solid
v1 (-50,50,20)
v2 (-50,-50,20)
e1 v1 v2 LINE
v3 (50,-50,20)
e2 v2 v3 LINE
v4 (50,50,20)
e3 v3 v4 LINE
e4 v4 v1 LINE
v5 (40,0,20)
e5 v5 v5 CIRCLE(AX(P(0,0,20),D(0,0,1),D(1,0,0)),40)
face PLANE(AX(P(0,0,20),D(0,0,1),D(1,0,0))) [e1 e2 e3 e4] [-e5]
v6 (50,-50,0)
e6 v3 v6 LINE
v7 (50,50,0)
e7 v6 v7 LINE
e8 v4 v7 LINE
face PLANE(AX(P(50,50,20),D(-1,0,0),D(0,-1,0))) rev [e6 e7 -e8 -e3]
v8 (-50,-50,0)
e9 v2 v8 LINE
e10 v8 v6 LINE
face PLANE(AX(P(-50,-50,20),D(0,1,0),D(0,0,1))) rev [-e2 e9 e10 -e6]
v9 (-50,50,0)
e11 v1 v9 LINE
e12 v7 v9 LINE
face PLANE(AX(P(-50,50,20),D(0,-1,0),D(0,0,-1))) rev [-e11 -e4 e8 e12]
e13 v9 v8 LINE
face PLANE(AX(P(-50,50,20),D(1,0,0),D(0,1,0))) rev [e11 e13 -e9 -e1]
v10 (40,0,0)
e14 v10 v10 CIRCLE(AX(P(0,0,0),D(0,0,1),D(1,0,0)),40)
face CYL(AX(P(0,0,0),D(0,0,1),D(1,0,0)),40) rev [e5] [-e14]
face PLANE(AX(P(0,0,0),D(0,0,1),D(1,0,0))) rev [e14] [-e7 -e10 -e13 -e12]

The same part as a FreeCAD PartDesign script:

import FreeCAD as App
import Part
import Sketcher

V = App.Vector

doc = App.newDocument("Part")
body = doc.addObject("PartDesign::Body", "Body")

# Sketch on XY plane
sketch1 = body.newObject("Sketcher::SketchObject", "Sketch")
sketch1.AttachmentSupport = (doc.getObject("XY_Plane"), [""])
sketch1.MapMode = "FlatFace"
sketch1.addGeometry(Part.LineSegment(V(-50, 50, 0), V(-50, -50, 0)), False)
sketch1.addGeometry(Part.LineSegment(V(-50, -50, 0), V(50, -50, 0)), False)
sketch1.addGeometry(Part.LineSegment(V(50, -50, 0), V(50, 50, 0)), False)
sketch1.addGeometry(Part.LineSegment(V(50, 50, 0), V(-50, 50, 0)), False)
sketch1.addConstraint(Sketcher.Constraint("Coincident", 0, 2, 1, 1))
sketch1.addConstraint(Sketcher.Constraint("Coincident", 1, 2, 2, 1))
sketch1.addConstraint(Sketcher.Constraint("Coincident", 2, 2, 3, 1))
sketch1.addConstraint(Sketcher.Constraint("Coincident", 3, 2, 0, 1))
sketch1.addConstraint(Sketcher.Constraint("Vertical", 0))
sketch1.addConstraint(Sketcher.Constraint("Horizontal", 1))
sketch1.addConstraint(Sketcher.Constraint("Vertical", 2))
sketch1.addConstraint(Sketcher.Constraint("Horizontal", 3))
sketch1.addConstraint(Sketcher.Constraint("Symmetric", 0, 2, 2, 2, -1, 1))
sketch1.addConstraint(Sketcher.Constraint("Equal", 3, 0))
sketch1.addConstraint(Sketcher.Constraint("DistanceX", 1, 1, 1, 2, 100.0))
pad1 = body.newObject("PartDesign::Pad", "Pad")
pad1.Profile = sketch1
pad1.Length = 20

# Sketch on XY plane
sketch2 = body.newObject("Sketcher::SketchObject", "Sketch001")
sketch2.AttachmentSupport = (doc.getObject("XY_Plane"), [""])
sketch2.MapMode = "FlatFace"
sketch2.AttachmentOffset = App.Placement(V(0, 0, 20), App.Rotation())
sketch2.addGeometry(Part.Circle(V(0, 0, 0), V(0, 0, 1), 40), False)
sketch2.addConstraint(Sketcher.Constraint("Coincident", 0, 3, -1, 1))
sketch2.addConstraint(Sketcher.Constraint("Diameter", 0, 80.0))
pocket1 = body.newObject("PartDesign::Pocket", "Pocket")
pocket1.Profile = sketch2
pocket1.Length = 20

doc.recompute()
